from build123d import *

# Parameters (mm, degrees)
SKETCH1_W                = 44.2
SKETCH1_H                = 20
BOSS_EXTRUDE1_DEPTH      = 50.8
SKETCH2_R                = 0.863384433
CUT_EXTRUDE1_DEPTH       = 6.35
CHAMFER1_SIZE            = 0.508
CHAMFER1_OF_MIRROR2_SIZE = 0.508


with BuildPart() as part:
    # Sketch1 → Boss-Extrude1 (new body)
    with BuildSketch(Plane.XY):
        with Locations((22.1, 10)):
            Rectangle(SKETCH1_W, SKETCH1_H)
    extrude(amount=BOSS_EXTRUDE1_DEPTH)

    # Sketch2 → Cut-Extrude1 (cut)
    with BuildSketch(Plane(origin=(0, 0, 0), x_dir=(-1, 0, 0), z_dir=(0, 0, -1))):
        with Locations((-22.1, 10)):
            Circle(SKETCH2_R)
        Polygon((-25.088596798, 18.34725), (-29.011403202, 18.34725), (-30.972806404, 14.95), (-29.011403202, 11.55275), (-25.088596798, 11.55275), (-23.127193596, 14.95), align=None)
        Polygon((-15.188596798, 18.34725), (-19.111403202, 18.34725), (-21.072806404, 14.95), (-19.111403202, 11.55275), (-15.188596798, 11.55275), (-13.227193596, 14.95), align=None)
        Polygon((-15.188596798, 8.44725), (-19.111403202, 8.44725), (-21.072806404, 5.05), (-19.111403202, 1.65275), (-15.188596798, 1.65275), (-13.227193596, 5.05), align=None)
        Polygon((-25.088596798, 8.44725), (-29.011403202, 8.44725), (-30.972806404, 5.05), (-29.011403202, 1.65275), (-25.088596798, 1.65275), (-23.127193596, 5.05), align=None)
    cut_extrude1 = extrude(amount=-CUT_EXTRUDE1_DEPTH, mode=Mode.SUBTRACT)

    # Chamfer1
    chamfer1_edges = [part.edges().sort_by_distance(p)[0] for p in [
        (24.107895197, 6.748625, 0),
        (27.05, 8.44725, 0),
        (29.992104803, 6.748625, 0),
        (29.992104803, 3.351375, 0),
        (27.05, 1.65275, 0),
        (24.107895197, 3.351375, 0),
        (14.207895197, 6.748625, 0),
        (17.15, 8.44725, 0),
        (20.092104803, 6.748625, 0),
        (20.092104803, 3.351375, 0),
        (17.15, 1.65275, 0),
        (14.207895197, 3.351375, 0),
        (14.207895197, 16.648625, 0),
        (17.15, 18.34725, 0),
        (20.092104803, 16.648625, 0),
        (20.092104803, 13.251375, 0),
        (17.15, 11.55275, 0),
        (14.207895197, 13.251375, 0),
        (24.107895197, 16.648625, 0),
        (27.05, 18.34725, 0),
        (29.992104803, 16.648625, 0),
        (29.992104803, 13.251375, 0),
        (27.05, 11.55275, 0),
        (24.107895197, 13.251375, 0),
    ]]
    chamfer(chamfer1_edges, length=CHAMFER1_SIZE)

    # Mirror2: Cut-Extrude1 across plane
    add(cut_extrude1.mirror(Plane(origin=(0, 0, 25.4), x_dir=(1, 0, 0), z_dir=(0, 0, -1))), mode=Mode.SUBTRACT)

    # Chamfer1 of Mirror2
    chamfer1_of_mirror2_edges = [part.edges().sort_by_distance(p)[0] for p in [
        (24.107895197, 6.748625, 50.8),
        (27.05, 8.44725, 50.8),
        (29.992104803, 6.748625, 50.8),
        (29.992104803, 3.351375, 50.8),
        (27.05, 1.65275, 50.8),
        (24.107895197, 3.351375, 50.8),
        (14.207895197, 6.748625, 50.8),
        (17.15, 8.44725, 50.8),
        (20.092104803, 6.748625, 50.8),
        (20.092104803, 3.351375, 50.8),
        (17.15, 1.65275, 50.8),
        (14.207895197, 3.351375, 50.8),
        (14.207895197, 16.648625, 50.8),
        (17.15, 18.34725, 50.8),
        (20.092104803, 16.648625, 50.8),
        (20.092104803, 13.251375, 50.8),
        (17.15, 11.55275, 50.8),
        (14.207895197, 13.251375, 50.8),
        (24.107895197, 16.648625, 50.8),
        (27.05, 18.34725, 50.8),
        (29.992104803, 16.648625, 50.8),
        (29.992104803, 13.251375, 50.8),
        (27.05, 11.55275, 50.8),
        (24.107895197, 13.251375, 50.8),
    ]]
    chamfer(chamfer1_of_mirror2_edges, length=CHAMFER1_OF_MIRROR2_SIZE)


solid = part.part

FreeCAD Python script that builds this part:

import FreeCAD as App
import Part
import Sketcher

V = App.Vector
Q = App.Units.Quantity


def edges_at(feature, points):
    """Names of the edges that pass closest to the given points."""
    edges = feature.Shape.Edges
    near = lambda p: min(range(len(edges)), key=lambda i: edges[i].distToShape(Part.Vertex(*p))[0])
    return sorted({f"Edge{near(p) + 1}" for p in points})


def add_polygon(sketch, points):
    """Adds a closed chain of lines whose ends are joined by coincident constraints."""
    first, n = sketch.GeometryCount, len(points)
    for a, b in zip(points, points[1:] + points[:1]):
        sketch.addGeometry(Part.LineSegment(App.Vector(*a, 0), App.Vector(*b, 0)), False)
    for i in range(n):
        sketch.addConstraint(Sketcher.Constraint("Coincident", first + i, 2, first + (i + 1) % n, 1))

doc = App.newDocument("Part")
params = doc.addObject("Spreadsheet::Sheet", "Params")
for row, (alias, value) in enumerate([
    ("pad1_length", "2 in"),
    ("pocket1_length", "0.25 in"),
    ("chamfer_size", "0.02 in"),
    ("chamfer2_size", "0.02 in"),
], start=1):
    params.set(f"A{row}", alias)
    params.set(f"B{row}", "=" + value)
    params.setAlias(f"B{row}", alias)

body = doc.addObject("PartDesign::Body", "Body")

# Sketch on XY plane
sketch1 = doc.addObject("Sketcher::SketchObject", "Sketch")
body.addObject(sketch1)
sketch1.AttachmentSupport = (doc.XY_Plane, [""])
sketch1.MapMode = "FlatFace"
add_polygon(sketch1, [(0, 20), (0, 0), (44, 0), (44, 20)])  # lines 0-3
sketch1.addConstraint([
    Sketcher.Constraint("Vertical", 0),
    Sketcher.Constraint("Horizontal", 1),
    Sketcher.Constraint("Vertical", 2),
    Sketcher.Constraint("Horizontal", 3),
    Sketcher.Constraint("Coincident", 0, 2, -1, 1),
    Sketcher.Constraint("DistanceX", 1, 1, 1, 2, 44.2),
    Sketcher.Constraint("DistanceY", 0, 2, 0, 1, 20.0),
])
pad1 = doc.addObject("PartDesign::Pad", "Pad")
body.addObject(pad1)
pad1.Profile = sketch1
pad1.setExpression("Length", "Params.pad1_length")

# Sketch on XY plane
sketch2 = doc.addObject("Sketcher::SketchObject", "Sketch001")
body.addObject(sketch2)
sketch2.AttachmentSupport = (doc.XY_Plane, [""])
sketch2.MapMode = "FlatFace"
sketch2.addGeometry(Part.Circle(V(22.1, 10, 0), V(0, 0, 1), 0.9), False)  # 0
add_polygon(sketch2, [(25.1, 18.3), (29, 18.3), (31, 14.9), (29, 11.6), (25.1, 11.6), (23.1, 14.9)])  # lines 1-6
add_polygon(sketch2, [(15.2, 18.3), (19.1, 18.3), (21.1, 14.9), (19.1, 11.6), (15.2, 11.6), (13.2, 14.9)])  # lines 7-12
add_polygon(sketch2, [(15.2, 8.4), (19.1, 8.4), (21.1, 5), (19.1, 1.7), (15.2, 1.7), (13.2, 5)])  # lines 13-18
add_polygon(sketch2, [(25.1, 8.4), (29, 8.4), (31, 5), (29, 1.7), (25.1, 1.7), (23.1, 5)])  # lines 19-24
sketch2.addConstraint([
    Sketcher.Constraint("Horizontal", 1),
    Sketcher.Constraint("Horizontal", 4),
    Sketcher.Constraint("Horizontal", 7),
    Sketcher.Constraint("Horizontal", 10),
    Sketcher.Constraint("Horizontal", 13),
    Sketcher.Constraint("Horizontal", 16),
    Sketcher.Constraint("Horizontal", 19),
    Sketcher.Constraint("Horizontal", 22),
    Sketcher.Constraint("Parallel", 2, 5),
    Sketcher.Constraint("Parallel", 3, 6),
    Sketcher.Constraint("Parallel", 5, 8),
    Sketcher.Constraint("Parallel", 6, 9),
    Sketcher.Constraint("Parallel", 8, 11),
    Sketcher.Constraint("Parallel", 9, 12),
    Sketcher.Constraint("Parallel", 11, 14),
    Sketcher.Constraint("Parallel", 12, 15),
    Sketcher.Constraint("Parallel", 14, 17),
    Sketcher.Constraint("Parallel", 15, 18),
    Sketcher.Constraint("Parallel", 17, 20),
    Sketcher.Constraint("Parallel", 18, 21),
    Sketcher.Constraint("Parallel", 20, 23),
    Sketcher.Constraint("Parallel", 21, 24),
    Sketcher.Constraint("Horizontal", 2, 2, 5, 2),
    Sketcher.Constraint("Horizontal", 6, 2, 7, 2),
    Sketcher.Constraint("Horizontal", 5, 2, 8, 2),
    Sketcher.Constraint("Horizontal", 4, 2, 9, 2),
    Sketcher.Constraint("Horizontal", 8, 2, 11, 2),
    Sketcher.Constraint("Horizontal", 14, 2, 17, 2),
    Sketcher.Constraint("Horizontal", 18, 2, 19, 2),
    Sketcher.Constraint("Horizontal", 17, 2, 20, 2),
    Sketcher.Constraint("Horizontal", 16, 2, 21, 2),
    Sketcher.Constraint("Horizontal", 20, 2, 23, 2),
    Sketcher.Constraint("Vertical", 1, 2, 3, 2),
    Sketcher.Constraint("Vertical", 4, 2, 6, 2),
    Sketcher.Constraint("Vertical", 9, 2, 13, 2),
    Sketcher.Constraint("Vertical", 8, 2, 14, 2),
    Sketcher.Constraint("Vertical", 13, 2, 15, 2),
    Sketcher.Constraint("Vertical", 12, 2, 16, 2),
    Sketcher.Constraint("Vertical", 3, 2, 19, 2),
    Sketcher.Constraint("Vertical", 6, 2, 22, 2),
    Sketcher.Constraint("Equal", 4, 7),
    Sketcher.Constraint("Angle", 2, Q("-60 deg")),
    Sketcher.Constraint("Diameter", 0, 1.726769),
    Sketcher.Constraint("DistanceY", 3, 2, 1, 2, Q("0.2675 in")),
    Sketcher.Constraint("DistanceX", -1, 1, 0, 3, 22.1),
    Sketcher.Constraint("DistanceY", -1, 1, 0, 3, 10.0),
    Sketcher.Constraint("DistanceY", -1, 1, 2, 2, 14.95),
    Sketcher.Constraint("DistanceY", -1, 1, 14, 2, 5.05),
    Sketcher.Constraint("DistanceX", 7, 2, 1, 2, 9.9),
    Sketcher.Constraint("DistanceX", 1, 1, 1, 2, 3.922806),
    Sketcher.Constraint("DistanceX", -1, 1, 1, 2, 29.011403),
])
pocket1 = doc.addObject("PartDesign::Pocket", "Pocket")
body.addObject(pocket1)
pocket1.Profile = sketch2
pocket1.setExpression("Length", "Params.pocket1_length")
pocket1.Reversed = True
doc.recompute()

chamfer = doc.addObject("PartDesign::Chamfer", "Chamfer")
body.addObject(chamfer)
chamfer.Base = (pocket1, edges_at(pocket1, [
    (24.108, 6.749, 0),
    (27.05, 8.447, 0),
    (29.992, 6.749, 0),
    (29.992, 3.351, 0),
    (27.05, 1.653, 0),
    (24.108, 3.351, 0),
    (14.208, 6.749, 0),
    (17.15, 8.447, 0),
    (20.092, 6.749, 0),
    (20.092, 3.351, 0),
    (17.15, 1.653, 0),
    (14.208, 3.351, 0),
    (14.208, 16.649, 0),
    (17.15, 18.347, 0),
    (20.092, 16.649, 0),
    (20.092, 13.251, 0),
    (17.15, 11.553, 0),
    (14.208, 13.251, 0),
    (24.108, 16.649, 0),
    (27.05, 18.347, 0),
    (29.992, 16.649, 0),
    (29.992, 13.251, 0),
    (27.05, 11.553, 0),
    (24.108, 13.251, 0),
]))
chamfer.setExpression("Size", "Params.chamfer_size")
doc.recompute()

datumplane = doc.addObject("PartDesign::Plane", "DatumPlane")
body.addObject(datumplane)
datumplane.AttachmentSupport = (doc.XY_Plane, [""])
datumplane.MapMode = "FlatFace"
datumplane.AttachmentOffset = App.Placement(V(0, 0, 1 * 25.4), App.Rotation())
mirrored = doc.addObject("PartDesign::Mirrored", "Mirrored")
body.addObject(mirrored)
mirrored.Originals = [pocket1]
mirrored.MirrorPlane = (datumplane, [""])
body.Tip = mirrored
doc.recompute()

chamfer2 = doc.addObject("PartDesign::Chamfer", "Chamfer001")
body.addObject(chamfer2)
chamfer2.Base = (mirrored, edges_at(mirrored, [
    (24.108, 6.749, 50.8),
    (27.05, 8.447, 50.8),
    (29.992, 6.749, 50.8),
    (29.992, 3.351, 50.8),
    (27.05, 1.653, 50.8),
    (24.108, 3.351, 50.8),
    (14.208, 6.749, 50.8),
    (17.15, 8.447, 50.8),
    (20.092, 6.749, 50.8),
    (20.092, 3.351, 50.8),
    (17.15, 1.653, 50.8),
    (14.208, 3.351, 50.8),
    (14.208, 16.649, 50.8),
    (17.15, 18.347, 50.8),
    (20.092, 16.649, 50.8),
    (20.092, 13.251, 50.8),
    (17.15, 11.553, 50.8),
    (14.208, 13.251, 50.8),
    (24.108, 16.649, 50.8),
    (27.05, 18.347, 50.8),
    (29.992, 16.649, 50.8),
    (29.992, 13.251, 50.8),
    (27.05, 11.553, 50.8),
    (24.108, 13.251, 50.8),
]))
chamfer2.setExpression("Size", "Params.chamfer2_size")

doc.recompute()
